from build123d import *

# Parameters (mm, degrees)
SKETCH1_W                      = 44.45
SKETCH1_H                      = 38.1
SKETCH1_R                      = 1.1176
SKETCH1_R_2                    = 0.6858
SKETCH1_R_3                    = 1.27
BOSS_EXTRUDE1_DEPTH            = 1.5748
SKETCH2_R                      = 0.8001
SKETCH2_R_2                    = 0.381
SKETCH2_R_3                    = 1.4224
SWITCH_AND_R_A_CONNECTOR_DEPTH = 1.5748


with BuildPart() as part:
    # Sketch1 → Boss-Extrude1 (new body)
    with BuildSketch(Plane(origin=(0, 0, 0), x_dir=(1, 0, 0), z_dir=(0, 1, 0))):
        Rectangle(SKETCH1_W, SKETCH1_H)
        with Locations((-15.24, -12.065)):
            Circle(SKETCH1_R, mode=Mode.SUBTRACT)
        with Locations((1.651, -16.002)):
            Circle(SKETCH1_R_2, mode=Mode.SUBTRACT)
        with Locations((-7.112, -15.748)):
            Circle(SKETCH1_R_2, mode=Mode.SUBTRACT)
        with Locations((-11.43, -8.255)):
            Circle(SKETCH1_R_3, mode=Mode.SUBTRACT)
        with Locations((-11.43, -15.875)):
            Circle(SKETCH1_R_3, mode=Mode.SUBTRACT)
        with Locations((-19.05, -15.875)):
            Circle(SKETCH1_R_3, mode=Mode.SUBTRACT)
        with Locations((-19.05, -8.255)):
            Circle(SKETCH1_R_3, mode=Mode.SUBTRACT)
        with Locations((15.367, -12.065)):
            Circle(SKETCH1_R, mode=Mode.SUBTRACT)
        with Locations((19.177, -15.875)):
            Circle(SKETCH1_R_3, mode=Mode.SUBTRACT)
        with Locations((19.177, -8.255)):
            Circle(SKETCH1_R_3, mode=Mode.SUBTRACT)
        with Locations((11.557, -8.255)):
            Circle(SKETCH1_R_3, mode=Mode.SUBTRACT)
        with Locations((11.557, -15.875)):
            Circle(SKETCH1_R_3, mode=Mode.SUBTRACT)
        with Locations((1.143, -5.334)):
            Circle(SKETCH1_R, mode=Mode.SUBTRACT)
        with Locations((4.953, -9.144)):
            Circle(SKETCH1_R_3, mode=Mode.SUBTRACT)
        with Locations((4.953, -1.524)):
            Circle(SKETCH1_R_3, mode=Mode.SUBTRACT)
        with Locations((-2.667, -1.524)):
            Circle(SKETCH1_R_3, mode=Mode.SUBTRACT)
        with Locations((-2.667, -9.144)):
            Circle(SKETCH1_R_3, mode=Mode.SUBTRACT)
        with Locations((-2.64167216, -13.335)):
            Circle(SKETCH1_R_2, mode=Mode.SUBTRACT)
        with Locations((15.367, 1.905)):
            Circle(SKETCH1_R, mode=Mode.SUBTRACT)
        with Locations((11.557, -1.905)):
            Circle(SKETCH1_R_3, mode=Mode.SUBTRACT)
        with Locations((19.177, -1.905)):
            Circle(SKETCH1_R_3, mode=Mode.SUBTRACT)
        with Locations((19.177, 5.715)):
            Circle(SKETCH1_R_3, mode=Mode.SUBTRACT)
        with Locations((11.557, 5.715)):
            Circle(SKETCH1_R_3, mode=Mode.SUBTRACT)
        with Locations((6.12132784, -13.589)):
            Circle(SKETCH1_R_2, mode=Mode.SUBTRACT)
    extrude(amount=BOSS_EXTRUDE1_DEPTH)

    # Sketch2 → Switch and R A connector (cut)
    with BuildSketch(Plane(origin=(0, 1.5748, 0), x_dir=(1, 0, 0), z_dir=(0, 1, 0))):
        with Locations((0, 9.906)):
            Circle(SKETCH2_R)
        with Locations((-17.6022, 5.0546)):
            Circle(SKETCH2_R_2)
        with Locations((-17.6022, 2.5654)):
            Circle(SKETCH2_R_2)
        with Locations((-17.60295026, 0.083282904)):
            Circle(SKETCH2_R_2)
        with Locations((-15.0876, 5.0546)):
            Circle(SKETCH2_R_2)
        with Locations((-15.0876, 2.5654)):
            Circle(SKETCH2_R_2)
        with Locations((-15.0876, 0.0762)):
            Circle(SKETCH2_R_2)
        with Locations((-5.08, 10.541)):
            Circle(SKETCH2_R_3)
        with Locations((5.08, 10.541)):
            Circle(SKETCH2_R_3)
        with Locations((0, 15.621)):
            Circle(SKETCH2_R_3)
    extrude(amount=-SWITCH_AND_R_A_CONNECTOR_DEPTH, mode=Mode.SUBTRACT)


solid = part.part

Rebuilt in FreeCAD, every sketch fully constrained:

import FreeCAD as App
import Part
import Sketcher

V = App.Vector
Q = App.Units.Quantity

doc = App.newDocument("Part")
params = doc.addObject("Spreadsheet::Sheet", "Params")
for row, (alias, value) in enumerate([
    ("sketch1_diameter", "0.1 in"),
    ("sketch1_diameter2", "0.088 in"),
    ("sketch1_diameter3", "0.054 in"),
    ("sketch1_height", "1.5 in"),
    ("sketch1_width", "1.75 in"),
    ("pad1_length", "0.062 in"),
    ("sketch2_diameter", "0.03 in"),
    ("sketch2_diameter2", "0.063 in"),
    ("sketch2_diameter3", "0.112 in"),
    ("pocket1_length", "0.062 in"),
], start=1):
    params.set(f"A{row}", alias)
    params.set(f"B{row}", "=" + value)
    params.setAlias(f"B{row}", alias)

body = doc.addObject("PartDesign::Body", "Body")

sketch1 = doc.addObject("Sketcher::SketchObject", "Sketch")
body.addObject(sketch1)
sketch1.AttachmentSupport = (doc.XZ_Plane, [""])
sketch1.MapMode = "FlatFace"
sketch1.addGeometry(Part.LineSegment(V(-22.2, -19.1, 0), V(-22.2, 19.1, 0)), False)
sketch1.addGeometry(Part.LineSegment(V(-22.2, 19.1, 0), V(22.2, 19.1, 0)), False)
sketch1.addGeometry(Part.LineSegment(V(22.2, 19.1, 0), V(22.2, -19.1, 0)), False)
sketch1.addGeometry(Part.LineSegment(V(22.2, -19.1, 0), V(-22.2, -19.1, 0)), False)
sketch1.addGeometry(Part.Circle(V(-19.1, 15.9, 0), V(0, 0, 1), 1.3), False)
sketch1.addGeometry(Part.Circle(V(-11.4, 15.9, 0), V(0, 0, 1), 1.3), False)
sketch1.addGeometry(Part.Circle(V(-15.2, 12.1, 0), V(0, 0, 1), 1.1), False)
sketch1.addGeometry(Part.Circle(V(-7.1, 15.7, 0), V(0, 0, 1), 0.7), False)
sketch1.addGeometry(Part.Circle(V(-2.6, 13.3, 0), V(0, 0, 1), 0.7), False)
sketch1.addGeometry(Part.Circle(V(-19.1, 8.3, 0), V(0, 0, 1), 1.3), False)
sketch1.addGeometry(Part.Circle(V(-11.4, 8.3, 0), V(0, 0, 1), 1.3), False)
sketch1.addGeometry(Part.Circle(V(-2.7, 9.1, 0), V(0, 0, 1), 1.3), False)
sketch1.addGeometry(Part.Circle(V(1.7, 16, 0), V(0, 0, 1), 0.7), False)
sketch1.addGeometry(Part.Circle(V(6.1, 13.6, 0), V(0, 0, 1), 0.7), False)
sketch1.addGeometry(Part.Circle(V(11.6, 15.9, 0), V(0, 0, 1), 1.3), False)
sketch1.addGeometry(Part.Circle(V(19.2, 15.9, 0), V(0, 0, 1), 1.3), False)
sketch1.addGeometry(Part.Circle(V(15.4, 12.1, 0), V(0, 0, 1), 1.1), False)
sketch1.addGeometry(Part.Circle(V(5, 9.1, 0), V(0, 0, 1), 1.3), False)
sketch1.addGeometry(Part.Circle(V(1.1, 5.3, 0), V(0, 0, 1), 1.1), False)
sketch1.addGeometry(Part.Circle(V(11.6, 8.3, 0), V(0, 0, 1), 1.3), False)
sketch1.addGeometry(Part.Circle(V(19.2, 8.3, 0), V(0, 0, 1), 1.3), False)
sketch1.addGeometry(Part.Circle(V(-2.7, 1.5, 0), V(0, 0, 1), 1.3), False)
sketch1.addGeometry(Part.Circle(V(5, 1.5, 0), V(0, 0, 1), 1.3), False)
sketch1.addGeometry(Part.Circle(V(11.6, 1.9, 0), V(0, 0, 1), 1.3), False)
sketch1.addGeometry(Part.Circle(V(19.2, 1.9, 0), V(0, 0, 1), 1.3), False)
sketch1.addGeometry(Part.Circle(V(15.4, -1.9, 0), V(0, 0, 1), 1.1), False)
sketch1.addGeometry(Part.Circle(V(11.6, -5.7, 0), V(0, 0, 1), 1.3), False)
sketch1.addGeometry(Part.Circle(V(19.2, -5.7, 0), V(0, 0, 1), 1.3), False)
sketch1.addConstraint(Sketcher.Constraint("Coincident", 0, 2, 1, 1))
sketch1.addConstraint(Sketcher.Constraint("Coincident", 1, 2, 2, 1))
sketch1.addConstraint(Sketcher.Constraint("Coincident", 2, 2, 3, 1))
sketch1.addConstraint(Sketcher.Constraint("Coincident", 3, 2, 0, 1))
sketch1.addConstraint(Sketcher.Constraint("Vertical", 0))
sketch1.addConstraint(Sketcher.Constraint("Horizontal", 1))
sketch1.addConstraint(Sketcher.Constraint("Vertical", 2))
sketch1.addConstraint(Sketcher.Constraint("Horizontal", 3))
sketch1.addConstraint(Sketcher.Constraint("Equal", 4, 5))
sketch1.addConstraint(Sketcher.Constraint("Equal", 7, 8))
sketch1.addConstraint(Sketcher.Constraint("Equal", 5, 9))
sketch1.addConstraint(Sketcher.Constraint("Equal", 9, 10))
sketch1.addConstraint(Sketcher.Constraint("Equal", 10, 11))
sketch1.addConstraint(Sketcher.Constraint("Equal", 8, 12))
sketch1.addConstraint(Sketcher.Constraint("Equal", 12, 13))
sketch1.addConstraint(Sketcher.Constraint("Equal", 11, 14))
sketch1.addConstraint(Sketcher.Constraint("Equal", 14, 15))
sketch1.addConstraint(Sketcher.Constraint("Equal", 6, 16))
sketch1.addConstraint(Sketcher.Constraint("Equal", 15, 17))
sketch1.addConstraint(Sketcher.Constraint("Equal", 16, 18))
sketch1.addConstraint(Sketcher.Constraint("Equal", 17, 19))
sketch1.addConstraint(Sketcher.Constraint("Equal", 19, 20))
sketch1.addConstraint(Sketcher.Constraint("Equal", 20, 21))
sketch1.addConstraint(Sketcher.Constraint("Equal", 21, 22))
sketch1.addConstraint(Sketcher.Constraint("Equal", 22, 23))
sketch1.addConstraint(Sketcher.Constraint("Equal", 23, 24))
sketch1.addConstraint(Sketcher.Constraint("Equal", 18, 25))
sketch1.addConstraint(Sketcher.Constraint("Equal", 24, 26))
sketch1.addConstraint(Sketcher.Constraint("Equal", 26, 27))
sketch1.addConstraint(Sketcher.Constraint("Symmetric", 0, 2, 2, 2, -1, 1))
sketch1.addConstraint(Sketcher.Constraint("Horizontal", 4, 3, 5, 3))
sketch1.addConstraint(Sketcher.Constraint("Horizontal", 9, 3, 10, 3))
sketch1.addConstraint(Sketcher.Constraint("Horizontal", 5, 3, 14, 3))
sketch1.addConstraint(Sketcher.Constraint("Horizontal", 14, 3, 15, 3))
sketch1.addConstraint(Sketcher.Constraint("Horizontal", 6, 3, 16, 3))
sketch1.addConstraint(Sketcher.Constraint("Horizontal", 11, 3, 17, 3))
sketch1.addConstraint(Sketcher.Constraint("Horizontal", 10, 3, 19, 3))
sketch1.addConstraint(Sketcher.Constraint("Horizontal", 19, 3, 20, 3))
sketch1.addConstraint(Sketcher.Constraint("Horizontal", 21, 3, 22, 3))
sketch1.addConstraint(Sketcher.Constraint("Horizontal", 23, 3, 24, 3))
sketch1.addConstraint(Sketcher.Constraint("Horizontal", 26, 3, 27, 3))
sketch1.addConstraint(Sketcher.Constraint("Vertical", 4, 3, 9, 3))
sketch1.addConstraint(Sketcher.Constraint("Vertical", 5, 3, 10, 3))
sketch1.addConstraint(Sketcher.Constraint("Vertical", 14, 3, 19, 3))
sketch1.addConstraint(Sketcher.Constraint("Vertical", 15, 3, 20, 3))
sketch1.addConstraint(Sketcher.Constraint("Vertical", 11, 3, 21, 3))
sketch1.addConstraint(Sketcher.Constraint("Vertical", 17, 3, 22, 3))
sketch1.addConstraint(Sketcher.Constraint("Vertical", 19, 3, 23, 3))
sketch1.addConstraint(Sketcher.Constraint("Vertical", 20, 3, 24, 3))
sketch1.addConstraint(Sketcher.Constraint("Vertical", 16, 3, 25, 3))
sketch1.addConstraint(Sketcher.Constraint("Vertical", 23, 3, 26, 3))
sketch1.addConstraint(Sketcher.Constraint("Vertical", 24, 3, 27, 3))
sketch1.addConstraint(Sketcher.Constraint("Diameter", 4, Q("0.1 in")))
sketch1.addConstraint(Sketcher.Constraint("Diameter", 6, Q("0.088 in")))
sketch1.addConstraint(Sketcher.Constraint("Diameter", 7, Q("0.054 in")))
sketch1.addConstraint(Sketcher.Constraint("DistanceY", 0, 1, 0, 2, Q("1.5 in")))
sketch1.addConstraint(Sketcher.Constraint("DistanceX", 1, 1, 1, 2, Q("1.75 in")))
sketch1.addConstraint(Sketcher.Constraint("DistanceX", 6, 3, -1, 1, Q("0.6 in")))
sketch1.addConstraint(Sketcher.Constraint("DistanceX", 4, 3, 5, 3, Q("0.3 in")))
sketch1.addConstraint(Sketcher.Constraint("DistanceY", 8, 3, 5, 3, Q("0.1 in")))
sketch1.addConstraint(Sketcher.Constraint("DistanceY", 9, 3, 4, 3, Q("0.3 in")))
sketch1.addConstraint(Sketcher.Constraint("DistanceX", 14, 3, 15, 3, Q("0.3 in")))
sketch1.addConstraint(Sketcher.Constraint("DistanceX", 11, 3, 17, 3, Q("0.3 in")))
sketch1.addConstraint(Sketcher.Constraint("DistanceY", 21, 3, 11, 3, Q("0.3 in")))
sketch1.addConstraint(Sketcher.Constraint("DistanceY", 23, 3, 16, 3, Q("0.4 in")))
sketch1.addConstraint(Sketcher.Constraint("DistanceY", 25, 3, 19, 3, Q("0.4 in")))
sketch1.addConstraint(Sketcher.Constraint("DistanceY", 26, 3, 23, 3, Q("0.3 in")))
sketch1.addConstraint(Sketcher.Constraint("DistanceX", 4, 3, -1, 1, Q("0.75 in")))
sketch1.addConstraint(Sketcher.Constraint("DistanceX", 7, 3, -1, 1, Q("0.28 in")))
sketch1.addConstraint(Sketcher.Constraint("DistanceY", -1, 1, 7, 3, Q("0.62 in")))
sketch1.addConstraint(Sketcher.Constraint("DistanceY", -1, 1, 11, 3, Q("0.36 in")))
sketch1.addConstraint(Sketcher.Constraint("DistanceY", -1, 1, 12, 3, Q("0.63 in")))
sketch1.addConstraint(Sketcher.Constraint("DistanceY", -1, 1, 18, 3, Q("0.21 in")))
sketch1.addConstraint(Sketcher.Constraint("DistanceY", 6, 3, 4, 3, Q("0.15 in")))
sketch1.addConstraint(Sketcher.Constraint("DistanceX", 11, 3, 12, 3, Q("0.17 in")))
sketch1.addConstraint(Sketcher.Constraint("DistanceY", 8, 3, 13, 3, Q("0.01 in")))
sketch1.addConstraint(Sketcher.Constraint("DistanceX", 12, 3, 14, 3, Q("0.39 in")))
sketch1.addConstraint(Sketcher.Constraint("DistanceX", 16, 3, 15, 3, Q("0.15 in")))
sketch1.addConstraint(Sketcher.Constraint("DistanceX", 11, 3, 18, 3, Q("0.15 in")))
sketch1.addConstraint(Sketcher.Constraint("DistanceX", 15, 3, 1, 2, Q("0.12 in")))
sketch1.addConstraint(Sketcher.Constraint("DistanceY", -1, 1, 4, 3, Q("0.625 in")))
sketch1.addConstraint(Sketcher.Constraint("DistanceX", 8, 3, 13, 3, Q("0.345 in")))
sketch1.addConstraint(Sketcher.Constraint("DistanceX", 8, 3, -1, 1, 2.641672))
sketch1.setExpression("Constraints[52]", "Params.sketch1_diameter")
sketch1.setExpression("Constraints[53]", "Params.sketch1_diameter2")
sketch1.setExpression("Constraints[54]", "Params.sketch1_diameter3")
sketch1.setExpression("Constraints[55]", "Params.sketch1_height")
sketch1.setExpression("Constraints[56]", "Params.sketch1_width")
pad1 = doc.addObject("PartDesign::Pad", "Pad")
body.addObject(pad1)
pad1.Profile = sketch1
pad1.setExpression("Length", "Params.pad1_length")
pad1.Reversed = True

sketch2 = doc.addObject("Sketcher::SketchObject", "Sketch001")
body.addObject(sketch2)
sketch2.AttachmentSupport = (doc.XZ_Plane, [""])
sketch2.MapMode = "FlatFace"
sketch2.AttachmentOffset = App.Placement(V(0, 0, -0.062 * 25.4), App.Rotation())
sketch2.addGeometry(Part.Circle(V(0, -9.91, 0), V(0, 0, 1), 0.8), False)
sketch2.addGeometry(Part.Circle(V(-17.6, -5.05, 0), V(0, 0, 1), 0.38), False)
sketch2.addGeometry(Part.Circle(V(-17.6, -2.57, 0), V(0, 0, 1), 0.38), False)
sketch2.addGeometry(Part.Circle(V(-17.6, -0.08, 0), V(0, 0, 1), 0.38), False)
sketch2.addGeometry(Part.Circle(V(-15.09, -5.05, 0), V(0, 0, 1), 0.38), False)
sketch2.addGeometry(Part.Circle(V(-15.09, -2.57, 0), V(0, 0, 1), 0.38), False)
sketch2.addGeometry(Part.Circle(V(-15.09, -0.08, 0), V(0, 0, 1), 0.38), False)
sketch2.addGeometry(Part.Circle(V(-5.08, -10.54, 0), V(0, 0, 1), 1.42), False)
sketch2.addGeometry(Part.Circle(V(5.08, -10.54, 0), V(0, 0, 1), 1.42), False)
sketch2.addGeometry(Part.Circle(V(0, -15.62, 0), V(0, 0, 1), 1.42), False)
sketch2.addConstraint(Sketcher.Constraint("Equal", 1, 2))
sketch2.addConstraint(Sketcher.Constraint("Equal", 2, 3))
sketch2.addConstraint(Sketcher.Constraint("Equal", 3, 4))
sketch2.addConstraint(Sketcher.Constraint("Equal", 4, 5))
sketch2.addConstraint(Sketcher.Constraint("Equal", 5, 6))
sketch2.addConstraint(Sketcher.Constraint("Equal", 7, 8))
sketch2.addConstraint(Sketcher.Constraint("Equal", 8, 9))
sketch2.addConstraint(Sketcher.Constraint("Symmetric", 7, 3, 8, 3, -2))
sketch2.addConstraint(Sketcher.Constraint("PointOnObject", 0, 3, -2))
sketch2.addConstraint(Sketcher.Constraint("PointOnObject", 9, 3, -2))
sketch2.addConstraint(Sketcher.Constraint("Horizontal", 1, 3, 4, 3))
sketch2.addConstraint(Sketcher.Constraint("Horizontal", 2, 3, 5, 3))
sketch2.addConstraint(Sketcher.Constraint("Vertical", 1, 3, 2, 3))
sketch2.addConstraint(Sketcher.Constraint("Vertical", 4, 3, 5, 3))
sketch2.addConstraint(Sketcher.Constraint("Vertical", 5, 3, 6, 3))
sketch2.addConstraint(Sketcher.Constraint("Diameter", 1, Q("0.03 in")))
sketch2.addConstraint(Sketcher.Constraint("Diameter", 0, Q("0.063 in")))
sketch2.addConstraint(Sketcher.Constraint("Diameter", 7, Q("0.112 in")))
sketch2.addConstraint(Sketcher.Constraint("DistanceX", 7, 3, -1, 1, Q("0.2 in")))
sketch2.addConstraint(Sketcher.Constraint("DistanceY", 9, 3, 7, 3, Q("0.2 in")))
sketch2.addConstraint(Sketcher.Constraint("DistanceY", 0, 3, -1, 1, Q("0.39 in")))
sketch2.addConstraint(Sketcher.Constraint("DistanceX", 1, 3, -1, 1, Q("0.693 in")))
sketch2.addConstraint(Sketcher.Constraint("DistanceY", 1, 3, -1, 1, Q("0.199 in")))
sketch2.addConstraint(Sketcher.Constraint("DistanceY", 2, 3, -1, 1, Q("0.101 in")))
sketch2.addConstraint(Sketcher.Constraint("DistanceX", 4, 3, -1, 1, Q("0.594 in")))
sketch2.addConstraint(Sketcher.Constraint("DistanceY", 6, 3, -1, 1, Q("0.003 in")))
sketch2.addConstraint(Sketcher.Constraint("DistanceY", 7, 3, -1, 1, Q("0.415 in")))
sketch2.addConstraint(Sketcher.Constraint("DistanceX", 3, 3, -1, 1, 17.60295))
sketch2.addConstraint(Sketcher.Constraint("DistanceY", 3, 3, -1, 1, 0.083283))
sketch2.setExpression("Constraints[15]", "Params.sketch2_diameter")
sketch2.setExpression("Constraints[16]", "Params.sketch2_diameter2")
sketch2.setExpression("Constraints[17]", "Params.sketch2_diameter3")
pocket1 = doc.addObject("PartDesign::Pocket", "Pocket")
body.addObject(pocket1)
pocket1.Profile = sketch2
pocket1.setExpression("Length", "Params.pocket1_length")
pocket1.Reversed = True

doc.recompute()
